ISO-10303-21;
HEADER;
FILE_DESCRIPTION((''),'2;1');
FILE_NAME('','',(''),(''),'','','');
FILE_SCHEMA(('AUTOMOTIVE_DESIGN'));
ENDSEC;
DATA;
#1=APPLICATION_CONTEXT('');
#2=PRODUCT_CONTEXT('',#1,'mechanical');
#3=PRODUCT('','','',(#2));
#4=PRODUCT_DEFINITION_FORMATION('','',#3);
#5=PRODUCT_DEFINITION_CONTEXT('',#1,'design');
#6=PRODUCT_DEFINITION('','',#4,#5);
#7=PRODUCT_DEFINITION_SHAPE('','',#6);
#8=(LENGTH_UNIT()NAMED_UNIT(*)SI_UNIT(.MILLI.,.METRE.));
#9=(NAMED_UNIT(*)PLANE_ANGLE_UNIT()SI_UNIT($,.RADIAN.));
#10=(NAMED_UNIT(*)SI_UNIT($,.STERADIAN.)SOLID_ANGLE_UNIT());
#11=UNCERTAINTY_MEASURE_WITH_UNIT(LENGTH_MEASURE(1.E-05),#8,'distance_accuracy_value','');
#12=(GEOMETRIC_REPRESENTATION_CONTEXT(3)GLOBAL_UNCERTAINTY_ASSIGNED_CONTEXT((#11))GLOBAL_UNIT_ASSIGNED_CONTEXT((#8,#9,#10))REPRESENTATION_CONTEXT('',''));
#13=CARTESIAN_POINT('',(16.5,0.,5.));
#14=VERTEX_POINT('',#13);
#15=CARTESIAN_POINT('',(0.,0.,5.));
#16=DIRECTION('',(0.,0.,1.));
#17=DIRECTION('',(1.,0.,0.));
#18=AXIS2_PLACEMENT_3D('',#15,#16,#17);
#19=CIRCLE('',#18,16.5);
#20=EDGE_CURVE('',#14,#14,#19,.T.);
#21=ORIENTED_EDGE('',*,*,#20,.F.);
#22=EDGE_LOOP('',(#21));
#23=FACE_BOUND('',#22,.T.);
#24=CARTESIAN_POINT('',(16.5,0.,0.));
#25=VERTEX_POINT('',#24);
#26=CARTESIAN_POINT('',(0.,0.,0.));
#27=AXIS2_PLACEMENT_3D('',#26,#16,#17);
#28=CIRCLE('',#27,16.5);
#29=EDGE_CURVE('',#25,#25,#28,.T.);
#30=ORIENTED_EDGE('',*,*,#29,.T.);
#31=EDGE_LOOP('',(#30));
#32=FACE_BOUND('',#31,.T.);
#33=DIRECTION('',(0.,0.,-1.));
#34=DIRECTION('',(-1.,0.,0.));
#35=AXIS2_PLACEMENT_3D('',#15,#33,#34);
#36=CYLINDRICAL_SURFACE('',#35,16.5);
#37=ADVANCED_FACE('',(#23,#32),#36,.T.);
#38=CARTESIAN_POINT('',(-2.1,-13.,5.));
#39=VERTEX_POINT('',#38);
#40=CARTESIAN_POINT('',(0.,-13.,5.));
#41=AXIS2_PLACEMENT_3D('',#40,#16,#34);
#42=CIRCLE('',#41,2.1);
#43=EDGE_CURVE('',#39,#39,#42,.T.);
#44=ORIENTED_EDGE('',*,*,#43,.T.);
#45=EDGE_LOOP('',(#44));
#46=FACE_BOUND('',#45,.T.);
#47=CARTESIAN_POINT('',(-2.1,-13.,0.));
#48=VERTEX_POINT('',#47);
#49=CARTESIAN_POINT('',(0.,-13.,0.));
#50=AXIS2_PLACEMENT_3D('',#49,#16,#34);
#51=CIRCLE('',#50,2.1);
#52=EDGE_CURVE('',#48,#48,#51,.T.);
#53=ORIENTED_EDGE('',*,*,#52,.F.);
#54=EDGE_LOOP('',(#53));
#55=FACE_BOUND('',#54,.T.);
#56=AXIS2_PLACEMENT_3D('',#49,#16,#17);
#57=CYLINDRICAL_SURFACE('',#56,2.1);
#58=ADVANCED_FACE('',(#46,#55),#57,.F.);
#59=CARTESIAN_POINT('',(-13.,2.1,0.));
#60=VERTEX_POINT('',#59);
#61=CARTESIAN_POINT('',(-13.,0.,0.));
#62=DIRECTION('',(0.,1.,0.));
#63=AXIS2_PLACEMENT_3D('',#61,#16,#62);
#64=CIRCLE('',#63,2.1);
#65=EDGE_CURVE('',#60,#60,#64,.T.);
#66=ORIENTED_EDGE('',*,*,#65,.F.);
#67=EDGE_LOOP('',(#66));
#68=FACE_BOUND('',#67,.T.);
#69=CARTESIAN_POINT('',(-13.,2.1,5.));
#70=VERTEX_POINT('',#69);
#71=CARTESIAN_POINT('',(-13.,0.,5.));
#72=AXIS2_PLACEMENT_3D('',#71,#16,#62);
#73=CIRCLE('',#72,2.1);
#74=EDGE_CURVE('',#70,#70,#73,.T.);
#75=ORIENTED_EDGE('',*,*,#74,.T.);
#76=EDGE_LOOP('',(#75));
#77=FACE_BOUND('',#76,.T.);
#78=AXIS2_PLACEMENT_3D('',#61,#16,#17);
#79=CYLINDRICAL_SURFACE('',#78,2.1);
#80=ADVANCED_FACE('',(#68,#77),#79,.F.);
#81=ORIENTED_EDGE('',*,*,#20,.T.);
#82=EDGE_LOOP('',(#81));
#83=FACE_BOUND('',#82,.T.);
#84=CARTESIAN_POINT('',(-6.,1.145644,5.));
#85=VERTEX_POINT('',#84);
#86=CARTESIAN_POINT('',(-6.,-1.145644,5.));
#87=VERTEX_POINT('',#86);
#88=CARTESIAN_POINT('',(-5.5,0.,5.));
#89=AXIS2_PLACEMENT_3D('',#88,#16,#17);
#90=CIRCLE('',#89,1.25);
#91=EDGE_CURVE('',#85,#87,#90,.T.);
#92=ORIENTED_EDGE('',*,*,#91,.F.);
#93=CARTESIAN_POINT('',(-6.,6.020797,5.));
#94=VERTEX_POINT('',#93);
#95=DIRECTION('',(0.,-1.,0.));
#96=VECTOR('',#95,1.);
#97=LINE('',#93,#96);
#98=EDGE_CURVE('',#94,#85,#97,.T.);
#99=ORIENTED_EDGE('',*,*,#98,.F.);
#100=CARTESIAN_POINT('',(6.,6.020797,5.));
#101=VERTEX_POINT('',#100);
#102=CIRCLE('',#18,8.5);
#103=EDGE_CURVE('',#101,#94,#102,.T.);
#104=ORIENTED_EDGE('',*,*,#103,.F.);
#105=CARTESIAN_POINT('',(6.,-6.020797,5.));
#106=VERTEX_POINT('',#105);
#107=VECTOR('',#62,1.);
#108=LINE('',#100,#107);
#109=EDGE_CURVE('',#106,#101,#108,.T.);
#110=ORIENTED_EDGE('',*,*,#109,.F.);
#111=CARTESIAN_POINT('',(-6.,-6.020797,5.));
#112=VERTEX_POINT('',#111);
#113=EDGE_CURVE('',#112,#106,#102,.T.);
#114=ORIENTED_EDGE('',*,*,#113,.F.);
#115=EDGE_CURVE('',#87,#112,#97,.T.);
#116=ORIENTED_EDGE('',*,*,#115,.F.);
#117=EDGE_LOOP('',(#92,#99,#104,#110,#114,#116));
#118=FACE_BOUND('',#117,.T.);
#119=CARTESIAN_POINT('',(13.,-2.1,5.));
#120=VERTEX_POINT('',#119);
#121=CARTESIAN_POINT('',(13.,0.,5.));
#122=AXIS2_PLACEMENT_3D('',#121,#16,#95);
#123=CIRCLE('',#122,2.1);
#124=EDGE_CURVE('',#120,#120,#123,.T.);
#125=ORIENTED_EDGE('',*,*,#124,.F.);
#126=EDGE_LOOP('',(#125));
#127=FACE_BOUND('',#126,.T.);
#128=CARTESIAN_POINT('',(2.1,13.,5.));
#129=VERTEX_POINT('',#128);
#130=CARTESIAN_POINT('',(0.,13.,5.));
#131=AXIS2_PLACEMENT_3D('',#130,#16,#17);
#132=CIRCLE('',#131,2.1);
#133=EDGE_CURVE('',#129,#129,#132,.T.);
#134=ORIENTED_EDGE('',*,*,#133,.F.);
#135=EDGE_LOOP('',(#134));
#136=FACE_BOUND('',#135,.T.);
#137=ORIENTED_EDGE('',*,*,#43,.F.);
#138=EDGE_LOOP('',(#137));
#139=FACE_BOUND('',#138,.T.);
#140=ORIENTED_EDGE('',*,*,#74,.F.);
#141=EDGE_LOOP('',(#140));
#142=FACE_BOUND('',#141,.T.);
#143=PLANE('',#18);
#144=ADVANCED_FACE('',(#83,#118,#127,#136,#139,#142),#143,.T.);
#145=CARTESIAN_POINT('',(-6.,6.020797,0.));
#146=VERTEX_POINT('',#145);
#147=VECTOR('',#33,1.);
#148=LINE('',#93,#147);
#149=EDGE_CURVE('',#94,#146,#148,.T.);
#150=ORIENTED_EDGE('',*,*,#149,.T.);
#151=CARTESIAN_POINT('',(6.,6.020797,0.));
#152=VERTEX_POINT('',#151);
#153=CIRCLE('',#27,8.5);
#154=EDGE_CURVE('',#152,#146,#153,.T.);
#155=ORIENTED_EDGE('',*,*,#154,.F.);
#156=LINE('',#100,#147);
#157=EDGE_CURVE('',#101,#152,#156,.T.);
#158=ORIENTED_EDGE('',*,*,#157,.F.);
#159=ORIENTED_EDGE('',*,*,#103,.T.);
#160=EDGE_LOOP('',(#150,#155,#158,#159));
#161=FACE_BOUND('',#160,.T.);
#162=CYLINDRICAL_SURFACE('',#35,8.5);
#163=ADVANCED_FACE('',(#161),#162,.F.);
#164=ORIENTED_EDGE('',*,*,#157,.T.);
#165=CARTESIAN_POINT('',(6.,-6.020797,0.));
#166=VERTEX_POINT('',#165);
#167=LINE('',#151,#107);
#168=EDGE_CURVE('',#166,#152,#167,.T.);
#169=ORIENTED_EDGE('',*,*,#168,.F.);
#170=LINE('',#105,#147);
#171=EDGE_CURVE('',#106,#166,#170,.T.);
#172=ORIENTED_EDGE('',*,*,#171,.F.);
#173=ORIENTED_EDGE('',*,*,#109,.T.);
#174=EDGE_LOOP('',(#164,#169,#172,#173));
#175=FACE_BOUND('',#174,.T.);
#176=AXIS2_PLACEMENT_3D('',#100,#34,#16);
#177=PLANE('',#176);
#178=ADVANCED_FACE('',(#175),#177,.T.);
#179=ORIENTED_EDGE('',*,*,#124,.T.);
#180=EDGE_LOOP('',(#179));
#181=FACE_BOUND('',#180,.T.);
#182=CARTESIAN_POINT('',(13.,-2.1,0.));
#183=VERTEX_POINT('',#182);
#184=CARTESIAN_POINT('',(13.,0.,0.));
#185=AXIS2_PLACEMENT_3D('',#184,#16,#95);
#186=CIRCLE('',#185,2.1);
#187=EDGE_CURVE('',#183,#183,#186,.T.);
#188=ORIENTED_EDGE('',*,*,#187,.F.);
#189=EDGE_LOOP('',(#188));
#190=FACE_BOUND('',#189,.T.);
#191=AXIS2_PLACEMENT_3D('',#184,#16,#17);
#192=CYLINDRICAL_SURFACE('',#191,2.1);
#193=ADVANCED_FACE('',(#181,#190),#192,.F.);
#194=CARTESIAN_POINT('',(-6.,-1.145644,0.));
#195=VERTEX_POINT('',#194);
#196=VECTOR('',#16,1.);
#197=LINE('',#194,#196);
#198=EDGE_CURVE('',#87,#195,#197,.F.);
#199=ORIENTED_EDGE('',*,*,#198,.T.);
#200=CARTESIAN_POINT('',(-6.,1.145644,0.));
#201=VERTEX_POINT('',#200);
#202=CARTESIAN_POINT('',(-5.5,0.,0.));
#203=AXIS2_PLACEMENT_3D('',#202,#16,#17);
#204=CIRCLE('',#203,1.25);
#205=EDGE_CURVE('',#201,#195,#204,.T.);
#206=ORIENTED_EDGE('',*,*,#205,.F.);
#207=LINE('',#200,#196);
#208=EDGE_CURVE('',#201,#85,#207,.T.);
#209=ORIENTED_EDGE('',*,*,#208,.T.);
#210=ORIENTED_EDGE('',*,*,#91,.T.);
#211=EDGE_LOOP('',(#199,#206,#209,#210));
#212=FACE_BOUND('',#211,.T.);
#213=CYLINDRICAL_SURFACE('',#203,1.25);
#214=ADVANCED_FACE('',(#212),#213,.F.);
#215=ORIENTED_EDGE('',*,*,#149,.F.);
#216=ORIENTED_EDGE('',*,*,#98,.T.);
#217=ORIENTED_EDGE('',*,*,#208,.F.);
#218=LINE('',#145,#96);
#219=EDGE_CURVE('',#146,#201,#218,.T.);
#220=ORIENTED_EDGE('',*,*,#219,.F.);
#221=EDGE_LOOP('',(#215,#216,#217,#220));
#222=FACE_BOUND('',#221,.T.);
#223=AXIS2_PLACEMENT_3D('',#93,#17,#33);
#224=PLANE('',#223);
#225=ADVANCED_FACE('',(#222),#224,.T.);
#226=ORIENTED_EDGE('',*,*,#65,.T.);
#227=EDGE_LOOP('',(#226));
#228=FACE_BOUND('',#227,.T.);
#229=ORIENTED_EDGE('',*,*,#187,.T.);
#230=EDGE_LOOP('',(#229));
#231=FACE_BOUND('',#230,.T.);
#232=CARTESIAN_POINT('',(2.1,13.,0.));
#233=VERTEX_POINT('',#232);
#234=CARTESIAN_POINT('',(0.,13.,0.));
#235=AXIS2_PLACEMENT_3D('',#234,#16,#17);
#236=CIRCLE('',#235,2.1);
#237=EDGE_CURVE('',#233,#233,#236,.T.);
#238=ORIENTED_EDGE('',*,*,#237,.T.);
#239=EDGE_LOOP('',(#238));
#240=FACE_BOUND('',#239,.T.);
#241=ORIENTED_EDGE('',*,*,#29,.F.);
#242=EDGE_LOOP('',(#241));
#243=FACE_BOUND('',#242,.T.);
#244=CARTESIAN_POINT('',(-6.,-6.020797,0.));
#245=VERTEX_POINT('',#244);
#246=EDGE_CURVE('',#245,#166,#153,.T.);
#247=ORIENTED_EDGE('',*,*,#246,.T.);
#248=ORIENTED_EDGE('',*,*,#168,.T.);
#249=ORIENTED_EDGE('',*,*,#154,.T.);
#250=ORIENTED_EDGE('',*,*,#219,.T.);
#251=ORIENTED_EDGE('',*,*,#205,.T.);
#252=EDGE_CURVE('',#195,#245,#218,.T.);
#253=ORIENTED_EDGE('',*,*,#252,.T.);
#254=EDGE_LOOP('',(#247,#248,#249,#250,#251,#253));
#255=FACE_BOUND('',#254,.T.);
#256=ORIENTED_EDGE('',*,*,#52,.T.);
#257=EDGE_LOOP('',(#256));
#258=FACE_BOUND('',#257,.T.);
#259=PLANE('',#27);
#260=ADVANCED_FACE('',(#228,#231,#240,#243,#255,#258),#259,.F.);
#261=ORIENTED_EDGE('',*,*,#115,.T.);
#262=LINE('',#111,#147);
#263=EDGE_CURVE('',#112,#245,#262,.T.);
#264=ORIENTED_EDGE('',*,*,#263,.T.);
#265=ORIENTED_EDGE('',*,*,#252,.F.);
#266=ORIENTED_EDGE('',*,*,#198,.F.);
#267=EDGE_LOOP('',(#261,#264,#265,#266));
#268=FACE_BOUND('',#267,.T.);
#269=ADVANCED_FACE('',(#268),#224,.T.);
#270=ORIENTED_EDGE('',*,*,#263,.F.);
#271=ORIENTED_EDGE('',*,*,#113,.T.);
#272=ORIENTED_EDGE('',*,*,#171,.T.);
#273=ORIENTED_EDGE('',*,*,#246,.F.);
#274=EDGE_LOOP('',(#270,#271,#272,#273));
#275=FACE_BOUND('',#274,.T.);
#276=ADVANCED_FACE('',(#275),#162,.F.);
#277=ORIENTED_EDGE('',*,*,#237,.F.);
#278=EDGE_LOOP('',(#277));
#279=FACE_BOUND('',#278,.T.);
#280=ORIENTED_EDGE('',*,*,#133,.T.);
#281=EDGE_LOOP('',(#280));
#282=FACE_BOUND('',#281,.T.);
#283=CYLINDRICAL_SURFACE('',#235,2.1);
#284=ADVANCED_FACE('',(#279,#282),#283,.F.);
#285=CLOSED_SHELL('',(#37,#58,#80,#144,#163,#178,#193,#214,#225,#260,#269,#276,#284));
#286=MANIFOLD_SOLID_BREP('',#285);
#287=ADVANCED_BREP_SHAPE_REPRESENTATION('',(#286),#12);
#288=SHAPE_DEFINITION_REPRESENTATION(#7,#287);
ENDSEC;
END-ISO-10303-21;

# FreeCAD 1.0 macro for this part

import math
import FreeCAD as App
import Part
import Sketcher

V = App.Vector
Q = App.Units.Quantity

doc = App.newDocument("Part")
body = doc.addObject("PartDesign::Body", "Body")

# Sketch on XY plane
sketch1 = body.newObject("Sketcher::SketchObject", "Sketch")
sketch1.AttachmentSupport = (doc.getObject("XY_Plane"), [""])
sketch1.MapMode = "FlatFace"
sketch1.addGeometry([
    Part.Circle(V(0, 0, 0), V(0, 0, 1), 16),  # 0
    Part.LineSegment(V(-6, -6, 0), V(-6, 6, 0)),  # 1
    Part.ArcOfCircle(Part.Circle(V(0, 0, 0), V(0, 0, 1), 8), math.radians(45), math.radians(135)),  # 2
    Part.LineSegment(V(6, 6, 0), V(6, -6, 0)),  # 3
    Part.ArcOfCircle(Part.Circle(V(0, 0, 0), V(0, 0, 1), 8), math.radians(-135), math.radians(-45)),  # 4
], False)
sketch1.addConstraint([
    Sketcher.Constraint("Coincident", 1, 2, 2, 2),
    Sketcher.Constraint("Coincident", 2, 1, 3, 1),
    Sketcher.Constraint("Coincident", 3, 2, 4, 2),
    Sketcher.Constraint("Coincident", 4, 1, 1, 1),
    Sketcher.Constraint("Vertical", 1),
    Sketcher.Constraint("Vertical", 3),
    Sketcher.Constraint("Coincident", 0, 3, -1, 1),
    Sketcher.Constraint("Coincident", 2, 3, -1, 1),
    Sketcher.Constraint("Coincident", 4, 3, -1, 1),
    Sketcher.Constraint("Equal", 2, 4),
    Sketcher.Constraint("Horizontal", 1, 2, 2, 1),
    Sketcher.Constraint("Diameter", 0, Q("33 mm")),
    Sketcher.Constraint("Radius", 2, Q("8.5 mm")),
    Sketcher.Constraint("DistanceX", 1, 2, -1, 1, Q("6 mm")),
])
pad1 = body.newObject("PartDesign::Pad", "Pad")
pad1.Profile = sketch1
pad1.Length = 5

# Sketch on XY plane
sketch2 = body.newObject("Sketcher::SketchObject", "Sketch001")
sketch2.AttachmentSupport = (doc.getObject("XY_Plane"), [""])
sketch2.MapMode = "FlatFace"
sketch2.AttachmentOffset = App.Placement(V(0, 0, 5), App.Rotation())
sketch2.addGeometry(Part.Circle(V(0, 13, 0), V(0, 0, 1), 2.1), False)
sketch2.addConstraint([
    Sketcher.Constraint("PointOnObject", 0, 3, -2),
    Sketcher.Constraint("Diameter", 0, Q("4.2 mm")),
    Sketcher.Constraint("DistanceY", -1, 1, 0, 3, Q("13 mm")),
])
pocket1 = body.newObject("PartDesign::Pocket", "Pocket")
pocket1.Profile = sketch2
pocket1.Type = "ThroughAll"
doc.recompute()

polarpattern = body.newObject("PartDesign::PolarPattern", "PolarPattern")
polarpattern.Originals = [pocket1]
polarpattern.Axis = (doc.getObject("Z_Axis"), [""])
polarpattern.Angle = 360
polarpattern.Occurrences = 4
body.Tip = polarpattern

# Sketch on XY plane
sketch3 = body.newObject("Sketcher::SketchObject", "Sketch002")
sketch3.AttachmentSupport = (doc.getObject("XY_Plane"), [""])
sketch3.MapMode = "FlatFace"
sketch3.AttachmentOffset = App.Placement(V(0, 0, 5), App.Rotation())
sketch3.addGeometry(Part.Circle(V(-5.5, 0, 0), V(0, 0, 1), 1.2), False)
sketch3.addConstraint([
    Sketcher.Constraint("PointOnObject", 0, 3, -1),
    Sketcher.Constraint("Diameter", 0, Q("2.5 mm")),
    Sketcher.Constraint("DistanceX", 0, 3, -1, 1, Q("5.5 mm")),
])
pocket2 = body.newObject("PartDesign::Pocket", "Pocket001")
pocket2.Profile = sketch3
pocket2.Type = "ThroughAll"

doc.recompute()
